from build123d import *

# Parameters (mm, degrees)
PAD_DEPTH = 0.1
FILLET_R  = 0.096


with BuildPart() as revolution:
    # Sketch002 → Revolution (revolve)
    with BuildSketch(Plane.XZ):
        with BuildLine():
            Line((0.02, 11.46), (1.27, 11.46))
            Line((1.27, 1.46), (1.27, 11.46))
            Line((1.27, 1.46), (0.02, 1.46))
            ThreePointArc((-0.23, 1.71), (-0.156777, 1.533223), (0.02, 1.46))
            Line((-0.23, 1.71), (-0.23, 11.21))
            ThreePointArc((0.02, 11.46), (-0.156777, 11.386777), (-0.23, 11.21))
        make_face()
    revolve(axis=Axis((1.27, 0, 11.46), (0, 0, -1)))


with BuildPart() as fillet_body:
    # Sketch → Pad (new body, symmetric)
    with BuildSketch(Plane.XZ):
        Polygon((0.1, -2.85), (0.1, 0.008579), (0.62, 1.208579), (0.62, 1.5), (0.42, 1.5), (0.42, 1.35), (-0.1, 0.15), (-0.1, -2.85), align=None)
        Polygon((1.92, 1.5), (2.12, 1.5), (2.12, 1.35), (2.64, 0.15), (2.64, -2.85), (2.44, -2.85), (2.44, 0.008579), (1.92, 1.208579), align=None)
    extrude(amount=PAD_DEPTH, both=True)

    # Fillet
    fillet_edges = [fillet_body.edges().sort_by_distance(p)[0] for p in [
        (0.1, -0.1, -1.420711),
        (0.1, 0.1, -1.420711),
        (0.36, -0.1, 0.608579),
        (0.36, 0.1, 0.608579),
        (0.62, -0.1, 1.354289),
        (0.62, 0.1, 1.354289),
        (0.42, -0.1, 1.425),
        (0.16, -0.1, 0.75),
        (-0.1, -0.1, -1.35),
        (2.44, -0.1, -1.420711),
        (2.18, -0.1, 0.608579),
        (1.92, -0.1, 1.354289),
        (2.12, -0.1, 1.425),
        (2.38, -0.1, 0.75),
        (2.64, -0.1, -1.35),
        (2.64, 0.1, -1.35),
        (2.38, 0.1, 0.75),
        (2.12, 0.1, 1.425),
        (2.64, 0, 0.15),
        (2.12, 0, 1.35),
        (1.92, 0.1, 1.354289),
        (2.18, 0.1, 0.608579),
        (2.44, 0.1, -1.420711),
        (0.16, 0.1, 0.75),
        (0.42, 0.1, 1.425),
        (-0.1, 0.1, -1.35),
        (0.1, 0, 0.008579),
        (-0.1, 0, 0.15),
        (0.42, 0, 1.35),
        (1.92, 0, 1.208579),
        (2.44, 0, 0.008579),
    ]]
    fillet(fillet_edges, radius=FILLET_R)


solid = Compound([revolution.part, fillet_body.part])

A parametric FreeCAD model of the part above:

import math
import FreeCAD as App
import Part
import Sketcher
from FreeCAD import Vector
Q = App.Units.Quantity


def edges_at(feature, points):
    """Names of the edges that pass closest to the given points."""
    edges = feature.Shape.Edges
    near = lambda p: min(range(len(edges)), key=lambda i: edges[i].distToShape(Part.Vertex(*p))[0])
    return sorted({f"Edge{near(p) + 1}" for p in points})


def add_polygon(sketch, points):
    """Adds a closed chain of lines whose ends are joined by coincident constraints."""
    first, n = sketch.GeometryCount, len(points)
    for a, b in zip(points, points[1:] + points[:1]):
        sketch.addGeometry(Part.LineSegment(App.Vector(*a, 0), App.Vector(*b, 0)), False)
    for i in range(n):
        sketch.addConstraint(Sketcher.Constraint("Coincident", first + i, 2, first + (i + 1) % n, 1))

doc = App.newDocument("Part")
params = doc.addObject("Spreadsheet::Sheet", "Params")
for row, (alias, value) in enumerate([
    ("sketch1_height", "10 mm"),
    ("sketch1_radius", "0.249999 mm"),
    ("sketch1_height2", "9.5 mm"),
    ("sketch1_width", "1.25 mm"),
    ("revolution_angle", "360 deg"),
    ("sketch2_height", "3 mm"),
    ("sketch2_width", "0.2 mm"),
    ("sketch2_height2", "0.15 mm"),
    ("pad1_length", "0.2 mm"),
    ("fillet_radius", "0.096 mm"),
], start=1):
    params.set(f"A{row}", alias)
    params.set(f"B{row}", "=" + value)
    params.setAlias(f"B{row}", alias)

body = doc.addObject("PartDesign::Body", "Body")

# Sketch on XZ plane
sketch1 = body.newObject("Sketcher::SketchObject", "Sketch")
sketch1.AttachmentSupport = (doc.getObject("XZ_Plane"), [""])
sketch1.MapMode = "FlatFace"
sketch1.addGeometry(Part.LineSegment(Vector(1.27, 11.46, 0), Vector(0.02, 11.46, 0)), False)
sketch1.addGeometry(Part.ArcOfCircle(Part.Circle(Vector(0.02, 11.21, 0), Vector(0, 0, 1), 0.25), math.radians(90), math.radians(180)), False)
sketch1.addGeometry(Part.LineSegment(Vector(-0.23, 11.21, 0), Vector(-0.23, 1.71, 0)), False)
sketch1.addGeometry(Part.ArcOfCircle(Part.Circle(Vector(0.02, 1.71, 0), Vector(0, 0, 1), 0.25), math.radians(180), math.radians(270)), False)
sketch1.addGeometry(Part.LineSegment(Vector(0.02, 1.46, 0), Vector(1.27, 1.46, 0)), False)
sketch1.addGeometry(Part.LineSegment(Vector(1.27, 1.46, 0), Vector(1.27, 11.46, 0)), False)
sketch1.addGeometry(Part.LineSegment(Vector(1.27, 11.46, 0), Vector(1.27, 1.46, 0)), True)  # axis
sketch1.addConstraint(Sketcher.Constraint("Coincident", 0, 2, 1, 1))
sketch1.addConstraint(Sketcher.Constraint("Coincident", 1, 2, 2, 1))
sketch1.addConstraint(Sketcher.Constraint("Coincident", 2, 2, 3, 1))
sketch1.addConstraint(Sketcher.Constraint("Coincident", 3, 2, 4, 1))
sketch1.addConstraint(Sketcher.Constraint("Coincident", 4, 2, 5, 1))
sketch1.addConstraint(Sketcher.Constraint("Coincident", 5, 2, 0, 1))
sketch1.addConstraint(Sketcher.Constraint("Horizontal", 0))
sketch1.addConstraint(Sketcher.Constraint("Vertical", 2))
sketch1.addConstraint(Sketcher.Constraint("Horizontal", 4))
sketch1.addConstraint(Sketcher.Constraint("Vertical", 5))
sketch1.addConstraint(Sketcher.Constraint("Vertical", 6))
sketch1.addConstraint(Sketcher.Constraint("Coincident", 6, 1, 5, 2))
sketch1.addConstraint(Sketcher.Constraint("Equal", 1, 3))
sketch1.addConstraint(Sketcher.Constraint("Horizontal", 3, 3, 2, 2))
sketch1.addConstraint(Sketcher.Constraint("Horizontal", 3, 2, 6, 2))
sketch1.addConstraint(Sketcher.Constraint("Vertical", 3, 3, 0, 2))
sketch1.addConstraint(Sketcher.Constraint("Vertical", 0, 2, 3, 2))
sketch1.addConstraint(Sketcher.Constraint("DistanceY", 5, 1, 5, 2, Q("10 mm")))
sketch1.addConstraint(Sketcher.Constraint("Radius", 1, Q("0.249999 mm")))
sketch1.addConstraint(Sketcher.Constraint("DistanceY", 2, 2, 2, 1, Q("9.5 mm")))
sketch1.addConstraint(Sketcher.Constraint("DistanceX", 0, 2, 0, 1, Q("1.25 mm")))
sketch1.addConstraint(Sketcher.Constraint("DistanceX", -1, 1, 1, 3, Q("0.019999 mm")))
sketch1.addConstraint(Sketcher.Constraint("DistanceY", -1, 1, 1, 3, Q("11.210001 mm")))
sketch1.setExpression("Constraints[17]", "Params.sketch1_height")
sketch1.setExpression("Constraints[18]", "Params.sketch1_radius")
sketch1.setExpression("Constraints[19]", "Params.sketch1_height2")
sketch1.setExpression("Constraints[20]", "Params.sketch1_width")
revolution = body.newObject("PartDesign::Revolution", "Revolution")
revolution.Profile = sketch1
revolution.ReferenceAxis = (sketch1, ["Axis0"])
revolution.setExpression("Angle", "Params.revolution_angle")
body2 = doc.addObject("PartDesign::Body", "Body001")
body2.AllowCompound = True

# Sketch on XZ plane
sketch2 = body2.newObject("Sketcher::SketchObject", "Sketch001")
sketch2.AttachmentSupport = (doc.getObject("XZ_Plane001"), [""])
sketch2.MapMode = "FlatFace"
add_polygon(sketch2, [(0.1, -2.85), (0.1, 0.01), (0.62, 1.21), (0.62, 1.5), (0.42, 1.5), (0.42, 1.35), (-0.1, 0.15), (-0.1, -2.85)])  # lines 0-7
add_polygon(sketch2, [(2.12, 1.5), (1.92, 1.5), (1.92, 1.21), (2.44, 0.01), (2.44, -2.85), (2.64, -2.85), (2.64, 0.15), (2.12, 1.35)])  # lines 8-15
sketch2.addConstraint(Sketcher.Constraint("Vertical", 0))
sketch2.addConstraint(Sketcher.Constraint("Vertical", 2))
sketch2.addConstraint(Sketcher.Constraint("Horizontal", 3))
sketch2.addConstraint(Sketcher.Constraint("Vertical", 4))
sketch2.addConstraint(Sketcher.Constraint("Vertical", 6))
sketch2.addConstraint(Sketcher.Constraint("Horizontal", 7))
sketch2.addConstraint(Sketcher.Constraint("Horizontal", 8))
sketch2.addConstraint(Sketcher.Constraint("Vertical", 9))
sketch2.addConstraint(Sketcher.Constraint("Vertical", 11))
sketch2.addConstraint(Sketcher.Constraint("Horizontal", 12))
sketch2.addConstraint(Sketcher.Constraint("Vertical", 13))
sketch2.addConstraint(Sketcher.Constraint("Vertical", 15))
sketch2.addConstraint(Sketcher.Constraint("Parallel", 1, 5))
sketch2.addConstraint(Sketcher.Constraint("Parallel", 10, 14))
sketch2.addConstraint(Sketcher.Constraint("Horizontal", 3, 2, 8, 2))
sketch2.addConstraint(Sketcher.Constraint("Horizontal", 1, 2, 9, 2))
sketch2.addConstraint(Sketcher.Constraint("Horizontal", 0, 2, 10, 2))
sketch2.addConstraint(Sketcher.Constraint("Horizontal", 7, 2, 11, 2))
sketch2.addConstraint(Sketcher.Constraint("Horizontal", 5, 2, 13, 2))
sketch2.addConstraint(Sketcher.Constraint("Horizontal", 4, 2, 14, 2))
sketch2.addConstraint(Sketcher.Constraint("Equal", 3, 7))
sketch2.addConstraint(Sketcher.Constraint("Equal", 7, 8))
sketch2.addConstraint(Sketcher.Constraint("Equal", 5, 10))
sketch2.addConstraint(Sketcher.Constraint("DistanceY", 6, 2, 6, 1, Q("3 mm")))
sketch2.addConstraint(Sketcher.Constraint("DistanceX", 3, 2, 3, 1, Q("0.2 mm")))
sketch2.addConstraint(Sketcher.Constraint("DistanceY", 4, 2, 4, 1, Q("0.15 mm")))
sketch2.addConstraint(Sketcher.Constraint("DistanceX", -1, 1, 0, 2, Q("0.1 mm")))
sketch2.addConstraint(Sketcher.Constraint("DistanceY", -1, 1, 2, 2, Q("1.5 mm")))
sketch2.addConstraint(Sketcher.Constraint("DistanceY", 0, 2, 1, 2, Q("1.2 mm")))
sketch2.addConstraint(Sketcher.Constraint("DistanceX", 2, 2, 8, 2, Q("1.3 mm")))
sketch2.addConstraint(Sketcher.Constraint("DistanceX", -1, 1, 1, 2, Q("0.62 mm")))
sketch2.addConstraint(Sketcher.Constraint("DistanceY", 0, 1, 0, 2, Q("2.858579 mm")))
sketch2.setExpression("Constraints[39]", "Params.sketch2_height")
sketch2.setExpression("Constraints[40]", "Params.sketch2_width")
sketch2.setExpression("Constraints[41]", "Params.sketch2_height2")
pad1 = body2.newObject("PartDesign::Pad", "Pad")
pad1.Profile = sketch2
pad1.setExpression("Length", "Params.pad1_length")
pad1.Midplane = True
doc.recompute()

fillet = body2.newObject("PartDesign::Fillet", "Fillet")
fillet.Base = (pad1, edges_at(pad1, [
    (0.1, -0.1, -1.421),
    (0.1, 0.1, -1.421),
    (0.36, -0.1, 0.609),
    (0.36, 0.1, 0.609),
    (0.62, -0.1, 1.354),
    (0.62, 0.1, 1.354),
    (0.42, -0.1, 1.425),
    (0.16, -0.1, 0.75),
    (-0.1, -0.1, -1.35),
    (2.44, -0.1, -1.421),
    (2.18, -0.1, 0.609),
    (1.92, -0.1, 1.354),
    (2.12, -0.1, 1.425),
    (2.38, -0.1, 0.75),
    (2.64, -0.1, -1.35),
    (2.64, 0.1, -1.35),
    (2.38, 0.1, 0.75),
    (2.12, 0.1, 1.425),
    (2.64, 0, 0.15),
    (2.12, 0, 1.35),
    (1.92, 0.1, 1.354),
    (2.18, 0.1, 0.609),
    (2.44, 0.1, -1.421),
    (0.16, 0.1, 0.75),
    (0.42, 0.1, 1.425),
    (-0.1, 0.1, -1.35),
    (0.1, 0, 0.009),
    (-0.1, 0, 0.15),
    (0.42, 0, 1.35),
    (1.92, 0, 1.209),
    (2.44, 0, 0.009),
]))
fillet.setExpression("Radius", "Params.fillet_radius")

doc.recompute()
